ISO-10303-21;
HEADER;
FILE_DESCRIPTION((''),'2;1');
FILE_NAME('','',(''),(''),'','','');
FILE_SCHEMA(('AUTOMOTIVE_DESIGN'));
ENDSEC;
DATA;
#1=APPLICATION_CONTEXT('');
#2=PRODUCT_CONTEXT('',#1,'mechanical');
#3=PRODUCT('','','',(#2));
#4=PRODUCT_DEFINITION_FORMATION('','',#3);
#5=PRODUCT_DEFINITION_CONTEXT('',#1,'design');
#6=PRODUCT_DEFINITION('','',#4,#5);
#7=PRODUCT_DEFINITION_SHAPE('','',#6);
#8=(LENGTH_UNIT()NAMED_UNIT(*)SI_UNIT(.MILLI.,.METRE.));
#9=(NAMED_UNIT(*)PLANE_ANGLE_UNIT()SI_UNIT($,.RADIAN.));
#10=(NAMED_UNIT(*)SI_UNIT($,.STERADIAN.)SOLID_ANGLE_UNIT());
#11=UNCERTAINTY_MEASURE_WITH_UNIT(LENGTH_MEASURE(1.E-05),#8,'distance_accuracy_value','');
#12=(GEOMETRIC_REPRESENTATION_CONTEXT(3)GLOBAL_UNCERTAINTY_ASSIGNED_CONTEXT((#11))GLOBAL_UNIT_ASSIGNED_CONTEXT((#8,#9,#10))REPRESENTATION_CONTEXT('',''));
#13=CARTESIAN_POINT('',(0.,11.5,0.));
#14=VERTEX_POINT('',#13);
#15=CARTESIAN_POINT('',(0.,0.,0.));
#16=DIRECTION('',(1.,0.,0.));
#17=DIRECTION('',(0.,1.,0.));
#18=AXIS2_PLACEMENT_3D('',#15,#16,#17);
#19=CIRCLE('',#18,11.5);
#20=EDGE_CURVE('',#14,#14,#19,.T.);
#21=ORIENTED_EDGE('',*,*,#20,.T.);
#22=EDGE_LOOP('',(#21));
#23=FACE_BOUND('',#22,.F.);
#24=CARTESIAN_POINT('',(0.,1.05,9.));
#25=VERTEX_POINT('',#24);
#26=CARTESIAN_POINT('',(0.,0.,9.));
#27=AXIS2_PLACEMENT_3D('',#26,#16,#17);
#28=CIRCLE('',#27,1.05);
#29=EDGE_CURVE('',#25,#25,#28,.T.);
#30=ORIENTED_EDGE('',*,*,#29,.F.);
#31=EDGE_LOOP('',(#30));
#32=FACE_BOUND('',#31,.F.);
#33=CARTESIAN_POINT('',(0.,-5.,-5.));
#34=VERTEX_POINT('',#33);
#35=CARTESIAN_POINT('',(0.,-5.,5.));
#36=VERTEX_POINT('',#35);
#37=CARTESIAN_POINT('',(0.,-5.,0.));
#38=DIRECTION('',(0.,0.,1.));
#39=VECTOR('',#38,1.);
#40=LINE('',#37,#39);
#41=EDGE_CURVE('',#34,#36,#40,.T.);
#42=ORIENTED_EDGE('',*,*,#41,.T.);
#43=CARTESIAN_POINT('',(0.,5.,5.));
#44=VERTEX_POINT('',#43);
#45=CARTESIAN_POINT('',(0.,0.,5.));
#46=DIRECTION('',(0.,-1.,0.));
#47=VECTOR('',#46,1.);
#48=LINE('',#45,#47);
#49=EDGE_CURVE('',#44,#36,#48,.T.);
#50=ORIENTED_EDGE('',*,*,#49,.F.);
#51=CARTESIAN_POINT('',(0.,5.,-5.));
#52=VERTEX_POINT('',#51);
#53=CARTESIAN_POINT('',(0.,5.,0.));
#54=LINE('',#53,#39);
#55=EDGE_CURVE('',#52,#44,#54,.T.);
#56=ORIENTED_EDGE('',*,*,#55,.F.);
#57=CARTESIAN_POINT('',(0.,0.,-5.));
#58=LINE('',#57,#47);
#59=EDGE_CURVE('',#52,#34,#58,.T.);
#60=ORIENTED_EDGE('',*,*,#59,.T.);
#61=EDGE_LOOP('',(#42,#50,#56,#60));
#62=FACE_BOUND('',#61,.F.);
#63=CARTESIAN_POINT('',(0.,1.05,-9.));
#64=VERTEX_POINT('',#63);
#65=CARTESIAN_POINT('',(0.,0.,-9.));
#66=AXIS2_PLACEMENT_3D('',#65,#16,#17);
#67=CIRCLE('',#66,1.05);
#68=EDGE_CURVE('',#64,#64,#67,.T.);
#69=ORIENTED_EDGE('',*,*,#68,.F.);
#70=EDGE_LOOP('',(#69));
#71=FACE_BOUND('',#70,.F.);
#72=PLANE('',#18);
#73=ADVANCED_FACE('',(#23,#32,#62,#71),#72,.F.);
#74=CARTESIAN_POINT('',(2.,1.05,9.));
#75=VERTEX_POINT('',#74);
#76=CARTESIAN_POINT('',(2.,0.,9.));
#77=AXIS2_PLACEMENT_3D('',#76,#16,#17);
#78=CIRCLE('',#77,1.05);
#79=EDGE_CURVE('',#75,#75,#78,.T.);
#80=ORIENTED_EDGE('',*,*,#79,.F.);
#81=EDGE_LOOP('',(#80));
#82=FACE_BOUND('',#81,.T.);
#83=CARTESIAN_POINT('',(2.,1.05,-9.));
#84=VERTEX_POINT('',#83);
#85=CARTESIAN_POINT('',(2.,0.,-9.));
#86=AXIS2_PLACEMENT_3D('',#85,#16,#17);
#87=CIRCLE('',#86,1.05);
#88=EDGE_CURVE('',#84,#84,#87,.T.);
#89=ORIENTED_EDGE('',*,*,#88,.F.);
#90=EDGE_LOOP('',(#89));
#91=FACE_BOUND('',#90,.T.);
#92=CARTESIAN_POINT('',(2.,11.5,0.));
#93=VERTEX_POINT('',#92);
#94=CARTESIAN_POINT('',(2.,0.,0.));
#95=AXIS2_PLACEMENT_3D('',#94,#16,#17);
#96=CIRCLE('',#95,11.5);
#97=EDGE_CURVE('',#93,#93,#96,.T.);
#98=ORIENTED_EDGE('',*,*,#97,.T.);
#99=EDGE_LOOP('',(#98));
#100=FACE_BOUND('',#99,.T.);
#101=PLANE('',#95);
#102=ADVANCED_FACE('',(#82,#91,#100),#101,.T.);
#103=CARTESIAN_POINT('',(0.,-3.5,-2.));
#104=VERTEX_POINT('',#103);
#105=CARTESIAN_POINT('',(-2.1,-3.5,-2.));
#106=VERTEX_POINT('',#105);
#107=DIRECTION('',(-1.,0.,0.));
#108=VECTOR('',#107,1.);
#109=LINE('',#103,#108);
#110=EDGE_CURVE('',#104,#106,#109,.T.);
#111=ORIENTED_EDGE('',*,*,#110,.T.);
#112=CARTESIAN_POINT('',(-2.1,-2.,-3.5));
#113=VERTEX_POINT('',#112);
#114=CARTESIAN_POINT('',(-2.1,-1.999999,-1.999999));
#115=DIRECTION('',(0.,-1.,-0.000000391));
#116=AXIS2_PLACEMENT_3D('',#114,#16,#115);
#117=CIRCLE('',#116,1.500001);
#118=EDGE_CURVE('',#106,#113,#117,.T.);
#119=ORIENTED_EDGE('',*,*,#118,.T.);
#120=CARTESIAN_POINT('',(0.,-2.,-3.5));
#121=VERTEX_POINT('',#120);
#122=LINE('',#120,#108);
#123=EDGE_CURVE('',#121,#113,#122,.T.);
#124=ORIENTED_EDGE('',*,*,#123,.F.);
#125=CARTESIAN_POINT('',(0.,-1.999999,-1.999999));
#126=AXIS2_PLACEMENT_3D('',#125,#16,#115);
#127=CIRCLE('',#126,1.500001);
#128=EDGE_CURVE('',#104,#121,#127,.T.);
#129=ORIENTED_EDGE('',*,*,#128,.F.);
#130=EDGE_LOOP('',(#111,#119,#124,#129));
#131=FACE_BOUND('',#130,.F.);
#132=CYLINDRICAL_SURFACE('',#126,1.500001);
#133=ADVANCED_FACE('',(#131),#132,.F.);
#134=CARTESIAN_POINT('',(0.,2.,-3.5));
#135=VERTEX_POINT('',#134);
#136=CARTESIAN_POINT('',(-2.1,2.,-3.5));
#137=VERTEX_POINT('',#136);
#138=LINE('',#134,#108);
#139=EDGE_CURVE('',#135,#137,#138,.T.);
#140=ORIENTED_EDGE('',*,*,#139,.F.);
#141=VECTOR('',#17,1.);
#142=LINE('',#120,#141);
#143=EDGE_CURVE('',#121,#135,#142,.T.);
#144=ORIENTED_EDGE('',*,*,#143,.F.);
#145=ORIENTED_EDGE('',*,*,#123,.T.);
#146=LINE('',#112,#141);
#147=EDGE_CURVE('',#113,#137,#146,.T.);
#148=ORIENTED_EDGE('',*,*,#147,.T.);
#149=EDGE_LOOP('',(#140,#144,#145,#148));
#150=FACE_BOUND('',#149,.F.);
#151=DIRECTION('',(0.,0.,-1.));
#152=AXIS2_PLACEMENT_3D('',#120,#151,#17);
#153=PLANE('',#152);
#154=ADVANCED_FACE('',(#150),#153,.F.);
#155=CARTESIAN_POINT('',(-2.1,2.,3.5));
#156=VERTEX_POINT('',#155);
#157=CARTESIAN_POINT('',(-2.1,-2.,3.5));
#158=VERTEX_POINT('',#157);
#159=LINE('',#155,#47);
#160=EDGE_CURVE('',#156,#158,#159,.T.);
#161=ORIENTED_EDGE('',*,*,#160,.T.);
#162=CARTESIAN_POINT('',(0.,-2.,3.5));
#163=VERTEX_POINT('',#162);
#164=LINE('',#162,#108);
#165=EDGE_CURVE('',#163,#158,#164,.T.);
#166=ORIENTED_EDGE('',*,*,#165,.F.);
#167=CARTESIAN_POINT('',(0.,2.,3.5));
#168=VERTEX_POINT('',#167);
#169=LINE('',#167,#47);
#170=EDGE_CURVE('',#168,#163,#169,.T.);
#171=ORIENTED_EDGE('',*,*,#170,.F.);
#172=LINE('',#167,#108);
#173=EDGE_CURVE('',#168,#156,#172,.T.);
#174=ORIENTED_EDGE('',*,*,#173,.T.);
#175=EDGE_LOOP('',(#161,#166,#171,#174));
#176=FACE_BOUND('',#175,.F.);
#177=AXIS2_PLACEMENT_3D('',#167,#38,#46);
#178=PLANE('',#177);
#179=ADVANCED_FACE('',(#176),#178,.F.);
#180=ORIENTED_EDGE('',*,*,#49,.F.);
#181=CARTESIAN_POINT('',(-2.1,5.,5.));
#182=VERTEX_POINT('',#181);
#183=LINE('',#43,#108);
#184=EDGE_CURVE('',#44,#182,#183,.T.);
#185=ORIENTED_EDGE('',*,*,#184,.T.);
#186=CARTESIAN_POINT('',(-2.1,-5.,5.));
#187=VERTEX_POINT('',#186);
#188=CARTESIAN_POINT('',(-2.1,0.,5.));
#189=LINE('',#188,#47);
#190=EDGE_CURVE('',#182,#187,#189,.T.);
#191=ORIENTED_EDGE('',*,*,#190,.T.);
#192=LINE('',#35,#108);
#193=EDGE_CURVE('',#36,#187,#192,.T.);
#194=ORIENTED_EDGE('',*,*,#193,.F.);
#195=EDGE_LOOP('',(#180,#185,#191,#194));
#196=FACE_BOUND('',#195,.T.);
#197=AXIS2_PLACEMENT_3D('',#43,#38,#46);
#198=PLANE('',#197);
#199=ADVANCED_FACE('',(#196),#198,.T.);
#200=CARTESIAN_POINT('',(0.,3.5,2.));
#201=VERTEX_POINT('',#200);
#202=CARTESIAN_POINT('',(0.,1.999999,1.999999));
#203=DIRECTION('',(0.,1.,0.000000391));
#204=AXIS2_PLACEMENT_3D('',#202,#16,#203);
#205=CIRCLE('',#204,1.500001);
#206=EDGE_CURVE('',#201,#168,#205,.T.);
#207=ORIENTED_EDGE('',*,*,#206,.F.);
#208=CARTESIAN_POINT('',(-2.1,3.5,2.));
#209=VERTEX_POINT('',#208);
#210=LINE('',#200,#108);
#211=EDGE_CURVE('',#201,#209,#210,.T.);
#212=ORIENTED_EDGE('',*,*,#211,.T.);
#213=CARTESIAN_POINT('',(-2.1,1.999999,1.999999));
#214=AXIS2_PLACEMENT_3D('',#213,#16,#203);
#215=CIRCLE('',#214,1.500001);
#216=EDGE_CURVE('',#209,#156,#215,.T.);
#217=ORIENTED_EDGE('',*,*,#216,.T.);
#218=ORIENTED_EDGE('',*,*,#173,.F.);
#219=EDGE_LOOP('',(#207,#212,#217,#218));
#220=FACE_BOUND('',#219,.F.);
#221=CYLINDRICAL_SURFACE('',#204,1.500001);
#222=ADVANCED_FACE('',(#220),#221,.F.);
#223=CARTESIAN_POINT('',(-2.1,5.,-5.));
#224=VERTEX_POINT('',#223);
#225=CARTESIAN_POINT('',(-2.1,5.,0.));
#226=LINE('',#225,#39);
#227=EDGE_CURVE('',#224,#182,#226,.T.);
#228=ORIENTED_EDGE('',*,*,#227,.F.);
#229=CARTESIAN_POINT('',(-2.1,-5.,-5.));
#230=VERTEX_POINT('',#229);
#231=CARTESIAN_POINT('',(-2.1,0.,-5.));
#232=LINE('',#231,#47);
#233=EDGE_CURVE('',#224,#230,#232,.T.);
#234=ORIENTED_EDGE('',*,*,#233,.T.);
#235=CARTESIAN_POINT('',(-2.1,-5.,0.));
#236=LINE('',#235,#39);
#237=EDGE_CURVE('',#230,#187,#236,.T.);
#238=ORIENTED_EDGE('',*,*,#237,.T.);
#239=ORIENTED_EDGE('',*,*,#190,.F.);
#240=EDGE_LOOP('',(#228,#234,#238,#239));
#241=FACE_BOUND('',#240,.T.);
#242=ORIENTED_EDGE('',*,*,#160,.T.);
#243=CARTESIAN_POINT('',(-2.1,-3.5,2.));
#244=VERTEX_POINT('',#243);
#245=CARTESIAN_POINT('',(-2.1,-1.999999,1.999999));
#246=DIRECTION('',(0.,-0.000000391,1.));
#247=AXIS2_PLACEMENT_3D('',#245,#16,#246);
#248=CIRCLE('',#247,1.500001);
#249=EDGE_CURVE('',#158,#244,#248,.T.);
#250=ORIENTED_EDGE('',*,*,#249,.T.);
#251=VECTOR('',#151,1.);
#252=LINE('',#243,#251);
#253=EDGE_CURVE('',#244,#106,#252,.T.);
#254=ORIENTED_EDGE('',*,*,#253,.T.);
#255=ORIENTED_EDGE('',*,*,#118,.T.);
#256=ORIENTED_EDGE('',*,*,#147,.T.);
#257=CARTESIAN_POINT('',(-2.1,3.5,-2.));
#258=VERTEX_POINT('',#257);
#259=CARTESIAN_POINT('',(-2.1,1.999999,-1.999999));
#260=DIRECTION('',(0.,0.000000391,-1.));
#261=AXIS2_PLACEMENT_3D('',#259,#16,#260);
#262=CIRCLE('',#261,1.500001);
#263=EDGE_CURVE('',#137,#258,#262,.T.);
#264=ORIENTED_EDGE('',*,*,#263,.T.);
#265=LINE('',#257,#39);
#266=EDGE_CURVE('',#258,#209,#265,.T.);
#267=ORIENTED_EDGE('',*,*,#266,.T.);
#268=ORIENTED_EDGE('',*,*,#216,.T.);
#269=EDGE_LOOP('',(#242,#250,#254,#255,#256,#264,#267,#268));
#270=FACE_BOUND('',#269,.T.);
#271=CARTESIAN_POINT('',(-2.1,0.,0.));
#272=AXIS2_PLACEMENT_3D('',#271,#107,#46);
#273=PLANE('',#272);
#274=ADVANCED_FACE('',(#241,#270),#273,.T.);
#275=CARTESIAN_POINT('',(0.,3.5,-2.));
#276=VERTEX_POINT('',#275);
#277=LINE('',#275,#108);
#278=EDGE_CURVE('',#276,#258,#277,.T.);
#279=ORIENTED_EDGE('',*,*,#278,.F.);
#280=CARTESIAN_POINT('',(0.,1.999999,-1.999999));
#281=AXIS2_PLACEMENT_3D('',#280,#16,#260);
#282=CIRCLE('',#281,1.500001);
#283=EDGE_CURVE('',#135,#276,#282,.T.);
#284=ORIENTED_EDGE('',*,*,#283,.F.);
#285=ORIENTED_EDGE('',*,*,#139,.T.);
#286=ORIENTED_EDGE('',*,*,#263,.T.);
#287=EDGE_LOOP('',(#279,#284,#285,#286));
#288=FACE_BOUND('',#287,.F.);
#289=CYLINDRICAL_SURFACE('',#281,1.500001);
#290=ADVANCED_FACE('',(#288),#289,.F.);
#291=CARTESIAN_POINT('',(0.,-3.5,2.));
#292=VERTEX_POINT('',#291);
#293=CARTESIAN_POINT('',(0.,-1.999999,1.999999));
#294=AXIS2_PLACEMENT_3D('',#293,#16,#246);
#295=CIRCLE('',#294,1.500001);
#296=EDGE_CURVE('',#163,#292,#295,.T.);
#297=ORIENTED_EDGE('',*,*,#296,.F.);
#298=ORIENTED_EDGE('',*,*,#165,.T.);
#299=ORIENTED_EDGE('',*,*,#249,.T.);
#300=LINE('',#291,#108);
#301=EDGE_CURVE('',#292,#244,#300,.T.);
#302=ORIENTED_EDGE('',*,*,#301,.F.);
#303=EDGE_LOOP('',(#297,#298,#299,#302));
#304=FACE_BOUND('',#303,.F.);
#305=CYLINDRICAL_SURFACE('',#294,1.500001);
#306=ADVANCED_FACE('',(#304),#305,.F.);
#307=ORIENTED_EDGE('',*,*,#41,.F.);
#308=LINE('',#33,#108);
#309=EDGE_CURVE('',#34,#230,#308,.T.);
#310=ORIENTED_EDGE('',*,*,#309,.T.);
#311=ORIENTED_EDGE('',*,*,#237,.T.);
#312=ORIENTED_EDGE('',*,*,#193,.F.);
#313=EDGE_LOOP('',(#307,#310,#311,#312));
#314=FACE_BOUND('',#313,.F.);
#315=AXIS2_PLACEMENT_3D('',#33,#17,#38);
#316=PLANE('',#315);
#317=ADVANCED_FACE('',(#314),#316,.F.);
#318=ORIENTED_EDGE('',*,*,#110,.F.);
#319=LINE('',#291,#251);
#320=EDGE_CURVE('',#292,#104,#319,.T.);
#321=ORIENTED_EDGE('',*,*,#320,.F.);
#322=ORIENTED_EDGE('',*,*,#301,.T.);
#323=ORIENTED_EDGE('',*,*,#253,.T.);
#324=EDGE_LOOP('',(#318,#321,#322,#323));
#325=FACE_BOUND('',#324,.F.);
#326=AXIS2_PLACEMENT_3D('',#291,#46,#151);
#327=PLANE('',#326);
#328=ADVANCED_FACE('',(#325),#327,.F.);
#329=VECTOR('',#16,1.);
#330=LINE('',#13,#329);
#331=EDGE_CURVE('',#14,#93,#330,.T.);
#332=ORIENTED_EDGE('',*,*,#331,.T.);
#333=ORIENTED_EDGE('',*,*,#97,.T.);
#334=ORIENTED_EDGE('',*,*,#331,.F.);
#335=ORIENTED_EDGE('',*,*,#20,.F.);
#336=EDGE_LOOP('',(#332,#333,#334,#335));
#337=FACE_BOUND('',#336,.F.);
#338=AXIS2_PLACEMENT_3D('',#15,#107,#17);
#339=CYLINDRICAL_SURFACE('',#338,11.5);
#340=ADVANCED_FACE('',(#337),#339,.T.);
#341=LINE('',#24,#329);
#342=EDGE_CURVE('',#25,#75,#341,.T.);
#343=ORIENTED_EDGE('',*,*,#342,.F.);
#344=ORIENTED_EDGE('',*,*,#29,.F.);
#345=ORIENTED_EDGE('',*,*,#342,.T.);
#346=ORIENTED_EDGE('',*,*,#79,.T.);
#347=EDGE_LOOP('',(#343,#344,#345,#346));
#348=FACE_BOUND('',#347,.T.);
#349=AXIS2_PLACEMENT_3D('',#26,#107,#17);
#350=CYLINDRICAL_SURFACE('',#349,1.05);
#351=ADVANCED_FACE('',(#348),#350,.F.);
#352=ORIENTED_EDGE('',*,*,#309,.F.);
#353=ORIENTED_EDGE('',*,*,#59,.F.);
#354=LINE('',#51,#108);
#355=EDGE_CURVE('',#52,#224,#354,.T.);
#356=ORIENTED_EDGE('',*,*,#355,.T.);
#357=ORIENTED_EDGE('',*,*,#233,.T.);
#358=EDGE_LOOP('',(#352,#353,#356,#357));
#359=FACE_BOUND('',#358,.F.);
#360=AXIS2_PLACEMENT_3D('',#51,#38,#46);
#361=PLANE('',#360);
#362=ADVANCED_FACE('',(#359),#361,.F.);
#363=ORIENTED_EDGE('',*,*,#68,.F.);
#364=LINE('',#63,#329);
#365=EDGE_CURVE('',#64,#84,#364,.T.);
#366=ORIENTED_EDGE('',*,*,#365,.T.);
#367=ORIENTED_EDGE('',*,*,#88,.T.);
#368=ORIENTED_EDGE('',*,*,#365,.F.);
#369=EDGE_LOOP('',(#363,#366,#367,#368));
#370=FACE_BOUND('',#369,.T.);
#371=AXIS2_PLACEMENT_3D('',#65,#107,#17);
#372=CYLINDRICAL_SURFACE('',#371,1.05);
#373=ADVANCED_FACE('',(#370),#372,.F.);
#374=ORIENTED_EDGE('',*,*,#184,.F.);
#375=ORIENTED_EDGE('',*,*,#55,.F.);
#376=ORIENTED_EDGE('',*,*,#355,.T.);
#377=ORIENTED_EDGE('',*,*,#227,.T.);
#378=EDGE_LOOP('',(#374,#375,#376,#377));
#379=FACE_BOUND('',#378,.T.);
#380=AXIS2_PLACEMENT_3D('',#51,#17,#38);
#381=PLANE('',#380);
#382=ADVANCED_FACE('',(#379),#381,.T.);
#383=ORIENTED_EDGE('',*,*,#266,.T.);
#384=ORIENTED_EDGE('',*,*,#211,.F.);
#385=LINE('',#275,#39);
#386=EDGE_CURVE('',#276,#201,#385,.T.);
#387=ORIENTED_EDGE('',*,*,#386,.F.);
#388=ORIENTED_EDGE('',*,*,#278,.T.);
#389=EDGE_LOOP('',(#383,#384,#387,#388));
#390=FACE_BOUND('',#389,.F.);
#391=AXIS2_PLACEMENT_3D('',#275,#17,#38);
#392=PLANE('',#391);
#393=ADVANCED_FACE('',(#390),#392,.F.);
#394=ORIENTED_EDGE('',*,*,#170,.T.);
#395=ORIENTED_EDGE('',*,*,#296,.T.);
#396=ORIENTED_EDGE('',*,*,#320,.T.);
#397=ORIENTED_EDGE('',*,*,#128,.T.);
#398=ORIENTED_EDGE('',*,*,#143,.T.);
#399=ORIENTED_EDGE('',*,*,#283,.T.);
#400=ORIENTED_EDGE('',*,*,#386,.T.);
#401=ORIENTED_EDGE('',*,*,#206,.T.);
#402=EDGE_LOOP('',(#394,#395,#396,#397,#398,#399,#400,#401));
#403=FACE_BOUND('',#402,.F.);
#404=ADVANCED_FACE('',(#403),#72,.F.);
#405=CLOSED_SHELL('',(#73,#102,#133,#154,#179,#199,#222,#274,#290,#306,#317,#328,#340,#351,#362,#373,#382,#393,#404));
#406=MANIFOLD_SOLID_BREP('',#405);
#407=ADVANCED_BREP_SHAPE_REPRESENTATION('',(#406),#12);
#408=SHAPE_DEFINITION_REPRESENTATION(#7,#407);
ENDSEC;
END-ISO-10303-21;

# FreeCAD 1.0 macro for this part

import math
import FreeCAD as App
import Part
import Sketcher

V = App.Vector


def add_polygon(sketch, points):
    """Adds a closed chain of lines whose ends are joined by coincident constraints."""
    first, n = sketch.GeometryCount, len(points)
    for a, b in zip(points, points[1:] + points[:1]):
        sketch.addGeometry(Part.LineSegment(App.Vector(*a, 0), App.Vector(*b, 0)), False)
    for i in range(n):
        sketch.addConstraint(Sketcher.Constraint("Coincident", first + i, 2, first + (i + 1) % n, 1))

doc = App.newDocument("Part")
body = doc.addObject("PartDesign::Body", "Body")

# Sketch on YZ plane
sketch1 = body.newObject("Sketcher::SketchObject", "Sketch")
sketch1.AttachmentSupport = (doc.getObject("YZ_Plane"), [""])
sketch1.MapMode = "FlatFace"
sketch1.addGeometry([
    Part.Circle(V(0, 0, 0), V(0, 0, 1), 11.5),
    Part.Circle(V(0, -9, 0), V(0, 0, 1), 1.1),
    Part.Circle(V(0, 9, 0), V(0, 0, 1), 1.1),
], False)
sketch1.addConstraint([
    Sketcher.Constraint("Coincident", 0, 3, -1, 1),
    Sketcher.Constraint("Equal", 1, 2),
    Sketcher.Constraint("Symmetric", 1, 3, 2, 3, -1, 1),
    Sketcher.Constraint("PointOnObject", 1, 3, -2),
    Sketcher.Constraint("Diameter", 0, 23.0),
    Sketcher.Constraint("Diameter", 1, 2.1),
    Sketcher.Constraint("DistanceY", 1, 3, -1, 1, 9.0),
])
pad1 = body.newObject("PartDesign::Pad", "Pad")
pad1.Profile = sketch1
pad1.Length = 2

# Sketch on YZ plane
sketch2 = body.newObject("Sketcher::SketchObject", "Sketch001")
sketch2.AttachmentSupport = (doc.getObject("YZ_Plane"), [""])
sketch2.MapMode = "FlatFace"
add_polygon(sketch2, [(5, 5), (5, -5), (-5, -5), (-5, 5)])  # lines 0-3
sketch2.addGeometry(Part.LineSegment(V(3.5, -2, 0), V(3.5, 2, 0)), False)  # 4
sketch2.addGeometry(Part.ArcOfCircle(Part.Circle(V(2, 2, 0), V(0, 0, 1), 1.5), math.radians(0), math.radians(90)), False)  # 5
sketch2.addGeometry(Part.LineSegment(V(2, 3.5, 0), V(-2, 3.5, 0)), False)  # 6
sketch2.addGeometry(Part.ArcOfCircle(Part.Circle(V(-2, 2, 0), V(0, 0, 1), 1.5), math.radians(90), math.radians(180)), False)  # 7
sketch2.addGeometry(Part.LineSegment(V(-3.5, 2, 0), V(-3.5, -2, 0)), False)  # 8
sketch2.addGeometry(Part.ArcOfCircle(Part.Circle(V(-2, -2, 0), V(0, 0, 1), 1.5), math.radians(-180), math.radians(-90)), False)  # 9
sketch2.addGeometry(Part.LineSegment(V(-2, -3.5, 0), V(2, -3.5, 0)), False)  # 10
sketch2.addGeometry(Part.ArcOfCircle(Part.Circle(V(2, -2, 0), V(0, 0, 1), 1.5), math.radians(-90), math.radians(0)), False)  # 11
sketch2.addConstraint([
    Sketcher.Constraint("Tangent", 4, 2, 5, 1),
    Sketcher.Constraint("Tangent", 5, 2, 6, 1),
    Sketcher.Constraint("Tangent", 6, 2, 7, 1),
    Sketcher.Constraint("Tangent", 7, 2, 8, 1),
    Sketcher.Constraint("Tangent", 8, 2, 9, 1),
    Sketcher.Constraint("Tangent", 9, 2, 10, 1),
    Sketcher.Constraint("Tangent", 10, 2, 11, 1),
    Sketcher.Constraint("Tangent", 11, 2, 4, 1),
    Sketcher.Constraint("Vertical", 0),
    Sketcher.Constraint("Horizontal", 1),
    Sketcher.Constraint("Vertical", 2),
    Sketcher.Constraint("Horizontal", 3),
    Sketcher.Constraint("Vertical", 4),
    Sketcher.Constraint("Horizontal", 6),
    Sketcher.Constraint("Vertical", 8),
    Sketcher.Constraint("Horizontal", 10),
    Sketcher.Constraint("Equal", 5, 7),
    Sketcher.Constraint("Equal", 7, 9),
    Sketcher.Constraint("Equal", 9, 11),
    Sketcher.Constraint("Symmetric", 5, 3, 9, 3, -1, 1),
    Sketcher.Constraint("Symmetric", 0, 2, 2, 2, -1, 1),
    Sketcher.Constraint("Equal", 3, 0),
    Sketcher.Constraint("Equal", 10, 4),
    Sketcher.Constraint("Radius", 5, 1.500001),
    Sketcher.Constraint("DistanceX", 1, 2, 1, 1, 10.0),
    Sketcher.Constraint("DistanceX", 6, 2, 6, 1, 4.0),
])
pad2 = body.newObject("PartDesign::Pad", "Pad001")
pad2.Profile = sketch2
pad2.Length = 2.1
pad2.Reversed = True

doc.recompute()
